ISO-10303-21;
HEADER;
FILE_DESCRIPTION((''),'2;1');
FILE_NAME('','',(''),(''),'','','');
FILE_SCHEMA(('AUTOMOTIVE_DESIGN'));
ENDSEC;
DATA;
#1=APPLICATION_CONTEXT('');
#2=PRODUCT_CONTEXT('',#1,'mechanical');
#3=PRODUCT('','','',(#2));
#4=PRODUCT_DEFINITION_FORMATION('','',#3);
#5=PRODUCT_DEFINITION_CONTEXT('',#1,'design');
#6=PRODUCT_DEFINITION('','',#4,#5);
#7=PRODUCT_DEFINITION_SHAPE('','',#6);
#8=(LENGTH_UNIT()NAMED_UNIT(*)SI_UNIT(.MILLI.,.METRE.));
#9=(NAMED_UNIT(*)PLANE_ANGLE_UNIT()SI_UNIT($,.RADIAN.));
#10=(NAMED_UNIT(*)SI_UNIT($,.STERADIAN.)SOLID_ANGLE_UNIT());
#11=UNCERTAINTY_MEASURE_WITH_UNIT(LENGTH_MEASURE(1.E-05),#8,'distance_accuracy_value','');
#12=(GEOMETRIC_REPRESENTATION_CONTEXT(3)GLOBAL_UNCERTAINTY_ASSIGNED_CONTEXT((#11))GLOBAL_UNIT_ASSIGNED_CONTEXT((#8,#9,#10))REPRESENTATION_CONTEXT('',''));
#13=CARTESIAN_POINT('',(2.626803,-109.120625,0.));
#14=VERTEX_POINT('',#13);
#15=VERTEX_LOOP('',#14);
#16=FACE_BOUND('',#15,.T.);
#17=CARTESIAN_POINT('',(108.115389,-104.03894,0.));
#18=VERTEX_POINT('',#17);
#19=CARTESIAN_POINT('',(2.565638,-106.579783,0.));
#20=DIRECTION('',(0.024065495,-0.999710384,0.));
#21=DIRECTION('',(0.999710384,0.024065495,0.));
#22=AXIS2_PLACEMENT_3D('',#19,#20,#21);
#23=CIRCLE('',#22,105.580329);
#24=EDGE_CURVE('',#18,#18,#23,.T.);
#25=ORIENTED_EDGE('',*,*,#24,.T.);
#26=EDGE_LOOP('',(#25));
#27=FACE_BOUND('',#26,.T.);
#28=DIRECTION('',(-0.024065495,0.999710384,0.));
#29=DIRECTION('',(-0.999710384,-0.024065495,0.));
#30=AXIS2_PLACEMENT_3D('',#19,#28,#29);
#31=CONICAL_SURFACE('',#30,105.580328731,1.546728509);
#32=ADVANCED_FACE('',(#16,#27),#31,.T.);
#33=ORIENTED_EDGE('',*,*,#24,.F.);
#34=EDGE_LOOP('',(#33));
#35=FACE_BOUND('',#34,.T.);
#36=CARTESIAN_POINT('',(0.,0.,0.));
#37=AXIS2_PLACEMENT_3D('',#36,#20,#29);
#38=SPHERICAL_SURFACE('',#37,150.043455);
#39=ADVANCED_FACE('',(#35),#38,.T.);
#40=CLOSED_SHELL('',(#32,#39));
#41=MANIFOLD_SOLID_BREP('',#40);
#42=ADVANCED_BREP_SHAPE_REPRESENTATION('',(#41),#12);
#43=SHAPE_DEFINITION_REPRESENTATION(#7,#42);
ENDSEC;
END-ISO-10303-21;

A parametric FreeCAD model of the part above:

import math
import FreeCAD as App
import Part
import Sketcher
Q = App.Units.Quantity

doc = App.newDocument("Part")
body = doc.addObject("PartDesign::Body", "Body")

sketch1 = body.newObject("Sketcher::SketchObject", "Sketch")
sketch1.AttachmentSupport = (doc.getObject("XY_Plane"), [""])
sketch1.MapMode = "FlatFace"
sketch1.addGeometry(Part.LineSegment(App.Vector(0, 0, 0), App.Vector(-4, 150, 0)), False)
sketch1.addGeometry(Part.ArcOfCircle(Part.Circle(App.Vector(0, 0, 0), App.Vector(0, 0, 1), 150), math.radians(91), math.radians(227)), False)
sketch1.addGeometry(Part.LineSegment(App.Vector(-103, -109, 0), App.Vector(3, -109, 0)), False)
sketch1.addGeometry(Part.LineSegment(App.Vector(3, -109, 0), App.Vector(0, 0, 0)), False)
sketch1.addGeometry(Part.LineSegment(App.Vector(3, -109, 0), App.Vector(-4, 150, 0)), True)
sketch1.addConstraint(Sketcher.Constraint("Coincident", 0, 2, 1, 1))
sketch1.addConstraint(Sketcher.Constraint("Coincident", 1, 2, 2, 1))
sketch1.addConstraint(Sketcher.Constraint("Coincident", 2, 2, 3, 1))
sketch1.addConstraint(Sketcher.Constraint("Coincident", 3, 2, 0, 1))
sketch1.addConstraint(Sketcher.Constraint("Horizontal", 2))
sketch1.addConstraint(Sketcher.Constraint("Coincident", 1, 3, -1, 1))
sketch1.addConstraint(Sketcher.Constraint("Coincident", 3, 2, -1, 1))
sketch1.addConstraint(Sketcher.Constraint("Coincident", 4, 1, 2, 2))
sketch1.addConstraint(Sketcher.Constraint("Coincident", 4, 2, 0, 2))
sketch1.addConstraint(Sketcher.Constraint("Parallel", 0, 3))
sketch1.addConstraint(Sketcher.Constraint("DistanceY", -1, 1, 0, 2, Q("150 mm")))
sketch1.addConstraint(Sketcher.Constraint("Radius", 1, Q("150.043455 mm")))
sketch1.addConstraint(Sketcher.Constraint("DistanceX", 2, 1, 2, 2, Q("105.610915 mm")))
revolution = body.newObject("PartDesign::Revolution", "Revolution")
revolution.Profile = sketch1
revolution.ReferenceAxis = (sketch1, ["Axis0"])
revolution.Angle = 360

doc.recompute()
